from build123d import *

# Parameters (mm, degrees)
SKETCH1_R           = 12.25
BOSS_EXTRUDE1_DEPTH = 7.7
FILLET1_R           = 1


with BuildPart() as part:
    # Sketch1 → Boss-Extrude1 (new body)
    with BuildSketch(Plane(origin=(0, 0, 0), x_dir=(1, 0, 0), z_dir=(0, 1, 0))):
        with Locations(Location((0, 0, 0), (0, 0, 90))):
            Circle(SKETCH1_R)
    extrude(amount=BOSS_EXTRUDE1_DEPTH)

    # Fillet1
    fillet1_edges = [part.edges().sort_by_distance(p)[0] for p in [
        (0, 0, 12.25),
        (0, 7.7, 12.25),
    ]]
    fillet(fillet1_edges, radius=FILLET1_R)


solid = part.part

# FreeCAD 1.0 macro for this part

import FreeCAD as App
import Part
import Sketcher
Q = App.Units.Quantity


def edges_at(feature, points):
    """Names of the edges that pass closest to the given points."""
    edges = feature.Shape.Edges
    near = lambda p: min(range(len(edges)), key=lambda i: edges[i].distToShape(Part.Vertex(*p))[0])
    return sorted({f"Edge{near(p) + 1}" for p in points})

doc = App.newDocument("Part")
body = doc.addObject("PartDesign::Body", "Body")

# Sketch on XZ plane
sketch1 = doc.addObject("Sketcher::SketchObject", "Sketch")
body.addObject(sketch1)
sketch1.AttachmentSupport = (doc.XZ_Plane, [""])
sketch1.MapMode = "FlatFace"
sketch1.addGeometry(Part.Circle(App.Vector(0, 0, 0), App.Vector(0, 0, 1), 12), False)
sketch1.addConstraint([
    Sketcher.Constraint("Coincident", 0, 3, -1, 1),
    Sketcher.Constraint("Diameter", 0, Q("24.5 mm")),
])
pad1 = doc.addObject("PartDesign::Pad", "Pad")
body.addObject(pad1)
pad1.Profile = sketch1
pad1.Length = 7.7
pad1.Reversed = True
doc.recompute()

fillet = doc.addObject("PartDesign::Fillet", "Fillet")
body.addObject(fillet)
fillet.Base = (pad1, edges_at(pad1, [(0, 0, 12.25), (0, 7.7, 12.25)]))
fillet.Radius = 1

doc.recompute()
